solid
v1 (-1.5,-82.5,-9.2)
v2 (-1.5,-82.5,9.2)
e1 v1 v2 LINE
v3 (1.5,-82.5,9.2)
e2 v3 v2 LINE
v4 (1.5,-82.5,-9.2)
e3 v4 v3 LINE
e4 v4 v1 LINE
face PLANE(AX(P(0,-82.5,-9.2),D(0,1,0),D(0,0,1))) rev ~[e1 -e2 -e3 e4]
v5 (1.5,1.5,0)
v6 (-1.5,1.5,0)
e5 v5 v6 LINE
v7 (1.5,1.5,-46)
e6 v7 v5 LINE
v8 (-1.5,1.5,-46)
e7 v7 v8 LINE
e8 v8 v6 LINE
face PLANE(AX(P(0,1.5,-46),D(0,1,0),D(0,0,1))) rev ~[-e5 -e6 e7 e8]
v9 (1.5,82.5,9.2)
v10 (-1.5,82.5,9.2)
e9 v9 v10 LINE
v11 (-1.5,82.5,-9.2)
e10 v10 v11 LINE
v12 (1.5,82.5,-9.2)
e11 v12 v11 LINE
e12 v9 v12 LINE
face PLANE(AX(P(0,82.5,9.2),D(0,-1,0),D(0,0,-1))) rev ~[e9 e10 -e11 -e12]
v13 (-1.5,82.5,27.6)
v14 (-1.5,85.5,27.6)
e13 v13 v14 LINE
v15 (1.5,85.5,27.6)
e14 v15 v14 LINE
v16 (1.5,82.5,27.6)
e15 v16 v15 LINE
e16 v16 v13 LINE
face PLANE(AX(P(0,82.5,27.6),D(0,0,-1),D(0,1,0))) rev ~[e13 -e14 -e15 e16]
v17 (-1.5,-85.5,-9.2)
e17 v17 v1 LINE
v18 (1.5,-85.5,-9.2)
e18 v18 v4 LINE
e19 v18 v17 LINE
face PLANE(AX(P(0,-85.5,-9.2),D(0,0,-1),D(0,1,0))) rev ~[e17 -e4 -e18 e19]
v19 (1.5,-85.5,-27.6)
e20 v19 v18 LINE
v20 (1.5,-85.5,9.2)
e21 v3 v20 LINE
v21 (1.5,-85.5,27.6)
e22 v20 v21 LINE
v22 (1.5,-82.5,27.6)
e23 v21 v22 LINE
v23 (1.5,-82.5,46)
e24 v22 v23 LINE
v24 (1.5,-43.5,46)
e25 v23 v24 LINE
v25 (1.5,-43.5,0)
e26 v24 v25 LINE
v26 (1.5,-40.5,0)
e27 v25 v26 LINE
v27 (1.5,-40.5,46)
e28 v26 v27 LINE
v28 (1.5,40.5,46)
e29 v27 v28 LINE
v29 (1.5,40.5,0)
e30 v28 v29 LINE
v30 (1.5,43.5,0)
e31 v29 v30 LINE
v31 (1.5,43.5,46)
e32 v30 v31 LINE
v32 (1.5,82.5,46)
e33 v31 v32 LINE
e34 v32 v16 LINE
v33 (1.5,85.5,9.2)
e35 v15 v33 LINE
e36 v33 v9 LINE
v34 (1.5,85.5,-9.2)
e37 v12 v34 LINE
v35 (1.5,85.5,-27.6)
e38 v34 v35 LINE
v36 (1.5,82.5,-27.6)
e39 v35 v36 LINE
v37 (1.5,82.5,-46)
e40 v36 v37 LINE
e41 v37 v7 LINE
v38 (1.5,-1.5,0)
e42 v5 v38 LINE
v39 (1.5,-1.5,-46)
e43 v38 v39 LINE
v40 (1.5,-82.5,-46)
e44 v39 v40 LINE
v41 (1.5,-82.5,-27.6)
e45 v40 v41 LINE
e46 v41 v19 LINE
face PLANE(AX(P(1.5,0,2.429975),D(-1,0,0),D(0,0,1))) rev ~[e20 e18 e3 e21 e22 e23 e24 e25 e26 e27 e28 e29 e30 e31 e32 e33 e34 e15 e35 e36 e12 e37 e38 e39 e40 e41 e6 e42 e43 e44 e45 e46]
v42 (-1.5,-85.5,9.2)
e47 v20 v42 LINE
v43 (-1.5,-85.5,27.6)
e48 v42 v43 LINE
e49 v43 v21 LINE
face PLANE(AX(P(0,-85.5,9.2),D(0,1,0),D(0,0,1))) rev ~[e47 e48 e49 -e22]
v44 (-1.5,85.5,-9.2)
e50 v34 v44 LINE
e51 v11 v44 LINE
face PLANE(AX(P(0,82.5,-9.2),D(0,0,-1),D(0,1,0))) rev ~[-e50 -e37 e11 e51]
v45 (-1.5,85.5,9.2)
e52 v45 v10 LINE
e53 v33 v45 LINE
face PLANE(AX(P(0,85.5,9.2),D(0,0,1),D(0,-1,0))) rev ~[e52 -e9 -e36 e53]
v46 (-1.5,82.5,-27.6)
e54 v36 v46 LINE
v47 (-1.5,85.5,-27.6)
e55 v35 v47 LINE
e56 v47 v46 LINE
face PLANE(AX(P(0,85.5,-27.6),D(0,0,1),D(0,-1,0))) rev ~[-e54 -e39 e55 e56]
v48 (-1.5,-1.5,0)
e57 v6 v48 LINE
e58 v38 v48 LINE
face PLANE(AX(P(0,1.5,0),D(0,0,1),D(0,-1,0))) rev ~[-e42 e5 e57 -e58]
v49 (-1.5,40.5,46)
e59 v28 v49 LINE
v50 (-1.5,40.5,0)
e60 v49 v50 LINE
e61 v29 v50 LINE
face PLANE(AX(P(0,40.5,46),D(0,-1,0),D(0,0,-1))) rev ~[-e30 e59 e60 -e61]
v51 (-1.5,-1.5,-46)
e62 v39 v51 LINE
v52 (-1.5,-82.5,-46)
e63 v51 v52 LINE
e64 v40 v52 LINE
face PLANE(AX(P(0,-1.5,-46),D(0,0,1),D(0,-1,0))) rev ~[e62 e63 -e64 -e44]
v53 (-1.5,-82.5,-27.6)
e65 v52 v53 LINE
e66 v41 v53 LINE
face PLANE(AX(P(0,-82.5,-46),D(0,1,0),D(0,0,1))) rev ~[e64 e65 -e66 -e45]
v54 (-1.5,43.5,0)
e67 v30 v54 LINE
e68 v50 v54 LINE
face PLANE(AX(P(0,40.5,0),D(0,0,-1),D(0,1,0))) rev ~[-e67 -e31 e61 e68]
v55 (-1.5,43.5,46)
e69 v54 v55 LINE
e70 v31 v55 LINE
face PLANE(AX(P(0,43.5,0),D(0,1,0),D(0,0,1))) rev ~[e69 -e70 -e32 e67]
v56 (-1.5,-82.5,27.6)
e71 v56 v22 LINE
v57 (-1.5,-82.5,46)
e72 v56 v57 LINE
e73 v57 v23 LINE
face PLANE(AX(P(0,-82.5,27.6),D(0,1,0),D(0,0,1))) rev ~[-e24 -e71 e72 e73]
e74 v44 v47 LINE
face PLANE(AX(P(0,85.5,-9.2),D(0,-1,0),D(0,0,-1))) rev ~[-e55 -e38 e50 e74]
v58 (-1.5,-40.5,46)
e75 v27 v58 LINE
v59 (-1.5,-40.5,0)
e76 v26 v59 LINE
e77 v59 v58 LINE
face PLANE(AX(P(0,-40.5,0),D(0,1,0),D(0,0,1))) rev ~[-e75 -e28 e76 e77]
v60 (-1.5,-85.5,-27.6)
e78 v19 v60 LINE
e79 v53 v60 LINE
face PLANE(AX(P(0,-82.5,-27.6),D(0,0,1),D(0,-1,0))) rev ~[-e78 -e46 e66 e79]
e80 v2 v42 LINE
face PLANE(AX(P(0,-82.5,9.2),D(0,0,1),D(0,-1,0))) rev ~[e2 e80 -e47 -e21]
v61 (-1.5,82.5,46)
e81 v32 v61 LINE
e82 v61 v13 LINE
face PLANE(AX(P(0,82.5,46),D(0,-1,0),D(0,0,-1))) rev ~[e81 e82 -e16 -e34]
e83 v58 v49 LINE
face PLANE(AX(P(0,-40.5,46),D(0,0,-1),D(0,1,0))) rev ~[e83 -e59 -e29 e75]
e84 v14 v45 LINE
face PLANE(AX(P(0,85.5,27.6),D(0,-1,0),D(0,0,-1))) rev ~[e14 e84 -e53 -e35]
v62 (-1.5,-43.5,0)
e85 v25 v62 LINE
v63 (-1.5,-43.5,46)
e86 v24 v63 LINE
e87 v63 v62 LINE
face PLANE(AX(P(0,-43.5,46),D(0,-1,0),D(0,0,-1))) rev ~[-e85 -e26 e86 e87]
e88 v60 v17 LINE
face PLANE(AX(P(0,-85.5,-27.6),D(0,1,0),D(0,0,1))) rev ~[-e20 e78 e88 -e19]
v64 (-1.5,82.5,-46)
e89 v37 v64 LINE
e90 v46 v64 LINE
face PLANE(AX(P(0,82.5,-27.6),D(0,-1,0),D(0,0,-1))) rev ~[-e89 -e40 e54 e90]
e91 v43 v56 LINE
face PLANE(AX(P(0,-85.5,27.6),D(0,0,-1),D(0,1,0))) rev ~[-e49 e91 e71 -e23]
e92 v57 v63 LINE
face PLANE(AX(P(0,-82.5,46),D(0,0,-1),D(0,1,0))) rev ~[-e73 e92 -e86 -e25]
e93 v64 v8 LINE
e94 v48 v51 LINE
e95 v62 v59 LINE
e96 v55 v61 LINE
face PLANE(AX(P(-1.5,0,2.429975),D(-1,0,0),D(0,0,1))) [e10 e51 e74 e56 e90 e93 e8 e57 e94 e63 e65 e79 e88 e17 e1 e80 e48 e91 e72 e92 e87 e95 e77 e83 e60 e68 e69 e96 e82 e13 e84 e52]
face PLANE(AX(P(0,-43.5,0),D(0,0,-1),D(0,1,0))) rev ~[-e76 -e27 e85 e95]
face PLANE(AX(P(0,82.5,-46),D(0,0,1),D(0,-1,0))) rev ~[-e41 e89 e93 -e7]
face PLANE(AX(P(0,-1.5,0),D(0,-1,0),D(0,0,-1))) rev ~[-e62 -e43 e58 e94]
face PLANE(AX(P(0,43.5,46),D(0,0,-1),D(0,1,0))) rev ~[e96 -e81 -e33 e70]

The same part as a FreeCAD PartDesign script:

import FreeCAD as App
import Part
import Sketcher
from FreeCAD import Vector
Q = App.Units.Quantity

doc = App.newDocument("Part")
body = doc.addObject("PartDesign::Body", "Body")

# Sketch on YZ plane
sketch1 = body.newObject("Sketcher::SketchObject", "Sketch")
sketch1.AttachmentSupport = (doc.getObject("YZ_Plane"), [""])
sketch1.MapMode = "FlatFace"
sketch1.addGeometry([
    Part.LineSegment(Vector(-43.5, 46, 0), Vector(-82.5, 46, 0)),  # 0
    Part.LineSegment(Vector(-82.5, 46, 0), Vector(-82.5, 27.6, 0)),  # 1
    Part.LineSegment(Vector(-82.5, 27.6, 0), Vector(-85.5, 27.6, 0)),  # 2
    Part.LineSegment(Vector(-85.5, 27.6, 0), Vector(-85.5, 9.2, 0)),  # 3
    Part.LineSegment(Vector(-85.5, 9.2, 0), Vector(-82.5, 9.2, 0)),  # 4
    Part.LineSegment(Vector(-82.5, 9.2, 0), Vector(-82.5, -9.2, 0)),  # 5
    Part.LineSegment(Vector(-82.5, -9.2, 0), Vector(-85.5, -9.2, 0)),  # 6
    Part.LineSegment(Vector(-85.5, -9.2, 0), Vector(-85.5, -27.6, 0)),  # 7
    Part.LineSegment(Vector(-85.5, -27.6, 0), Vector(-82.5, -27.6, 0)),  # 8
    Part.LineSegment(Vector(-82.5, -27.6, 0), Vector(-82.5, -46, 0)),  # 9
    Part.LineSegment(Vector(-82.5, -46, 0), Vector(-1.5, -46, 0)),  # 10
    Part.LineSegment(Vector(-1.5, -46, 0), Vector(-1.5, 0, 0)),  # 11
    Part.LineSegment(Vector(-1.5, 0, 0), Vector(1.5, 0, 0)),  # 12
    Part.LineSegment(Vector(1.5, 0, 0), Vector(1.5, -46, 0)),  # 13
    Part.LineSegment(Vector(1.5, -46, 0), Vector(82.5, -46, 0)),  # 14
    Part.LineSegment(Vector(82.5, -46, 0), Vector(82.5, -27.6, 0)),  # 15
    Part.LineSegment(Vector(82.5, -27.6, 0), Vector(85.5, -27.6, 0)),  # 16
    Part.LineSegment(Vector(85.5, -27.6, 0), Vector(85.5, -9.2, 0)),  # 17
    Part.LineSegment(Vector(85.5, -9.2, 0), Vector(82.5, -9.2, 0)),  # 18
    Part.LineSegment(Vector(82.5, -9.2, 0), Vector(82.5, 9.2, 0)),  # 19
    Part.LineSegment(Vector(82.5, 9.2, 0), Vector(85.5, 9.2, 0)),  # 20
    Part.LineSegment(Vector(85.5, 9.2, 0), Vector(85.5, 27.6, 0)),  # 21
    Part.LineSegment(Vector(85.5, 27.6, 0), Vector(82.5, 27.6, 0)),  # 22
    Part.LineSegment(Vector(82.5, 27.6, 0), Vector(82.5, 46, 0)),  # 23
    Part.LineSegment(Vector(82.5, 46, 0), Vector(43.5, 46, 0)),  # 24
    Part.LineSegment(Vector(43.5, 46, 0), Vector(43.5, 0, 0)),  # 25
    Part.LineSegment(Vector(43.5, 0, 0), Vector(40.5, 0, 0)),  # 26
    Part.LineSegment(Vector(40.5, 0, 0), Vector(40.5, 46, 0)),  # 27
    Part.LineSegment(Vector(40.5, 46, 0), Vector(-40.5, 46, 0)),  # 28
    Part.LineSegment(Vector(-40.5, 46, 0), Vector(-40.5, 0, 0)),  # 29
    Part.LineSegment(Vector(-40.5, 0, 0), Vector(-43.5, 0, 0)),  # 30
    Part.LineSegment(Vector(-43.5, 0, 0), Vector(-43.5, 46, 0)),  # 31
], False)
sketch1.addConstraint([
    Sketcher.Constraint("Coincident", 0, 2, 1, 1),
    Sketcher.Constraint("Coincident", 1, 2, 2, 1),
    Sketcher.Constraint("Coincident", 2, 2, 3, 1),
    Sketcher.Constraint("Coincident", 3, 2, 4, 1),
    Sketcher.Constraint("Coincident", 4, 2, 5, 1),
    Sketcher.Constraint("Coincident", 5, 2, 6, 1),
    Sketcher.Constraint("Coincident", 6, 2, 7, 1),
    Sketcher.Constraint("Coincident", 7, 2, 8, 1),
    Sketcher.Constraint("Coincident", 8, 2, 9, 1),
    Sketcher.Constraint("Coincident", 9, 2, 10, 1),
    Sketcher.Constraint("Coincident", 10, 2, 11, 1),
    Sketcher.Constraint("Coincident", 11, 2, 12, 1),
    Sketcher.Constraint("Coincident", 12, 2, 13, 1),
    Sketcher.Constraint("Coincident", 13, 2, 14, 1),
    Sketcher.Constraint("Coincident", 14, 2, 15, 1),
    Sketcher.Constraint("Coincident", 15, 2, 16, 1),
    Sketcher.Constraint("Coincident", 16, 2, 17, 1),
    Sketcher.Constraint("Coincident", 17, 2, 18, 1),
    Sketcher.Constraint("Coincident", 18, 2, 19, 1),
    Sketcher.Constraint("Coincident", 19, 2, 20, 1),
    Sketcher.Constraint("Coincident", 20, 2, 21, 1),
    Sketcher.Constraint("Coincident", 21, 2, 22, 1),
    Sketcher.Constraint("Coincident", 22, 2, 23, 1),
    Sketcher.Constraint("Coincident", 23, 2, 24, 1),
    Sketcher.Constraint("Coincident", 24, 2, 25, 1),
    Sketcher.Constraint("Coincident", 25, 2, 26, 1),
    Sketcher.Constraint("Coincident", 26, 2, 27, 1),
    Sketcher.Constraint("Coincident", 27, 2, 28, 1),
    Sketcher.Constraint("Coincident", 28, 2, 29, 1),
    Sketcher.Constraint("Coincident", 29, 2, 30, 1),
    Sketcher.Constraint("Coincident", 30, 2, 31, 1),
    Sketcher.Constraint("Coincident", 31, 2, 0, 1),
    Sketcher.Constraint("Horizontal", 0),
    Sketcher.Constraint("Vertical", 1),
    Sketcher.Constraint("Horizontal", 2),
    Sketcher.Constraint("Vertical", 3),
    Sketcher.Constraint("Horizontal", 4),
    Sketcher.Constraint("Vertical", 5),
    Sketcher.Constraint("Horizontal", 6),
    Sketcher.Constraint("Vertical", 7),
    Sketcher.Constraint("Horizontal", 8),
    Sketcher.Constraint("Vertical", 9),
    Sketcher.Constraint("Horizontal", 10),
    Sketcher.Constraint("Vertical", 11),
    Sketcher.Constraint("Horizontal", 12),
    Sketcher.Constraint("Vertical", 13),
    Sketcher.Constraint("Horizontal", 14),
    Sketcher.Constraint("Vertical", 15),
    Sketcher.Constraint("Horizontal", 16),
    Sketcher.Constraint("Vertical", 17),
    Sketcher.Constraint("Horizontal", 18),
    Sketcher.Constraint("Vertical", 19),
    Sketcher.Constraint("Horizontal", 20),
    Sketcher.Constraint("Vertical", 21),
    Sketcher.Constraint("Horizontal", 22),
    Sketcher.Constraint("Vertical", 23),
    Sketcher.Constraint("Horizontal", 24),
    Sketcher.Constraint("Vertical", 25),
    Sketcher.Constraint("Horizontal", 26),
    Sketcher.Constraint("Vertical", 27),
    Sketcher.Constraint("Horizontal", 28),
    Sketcher.Constraint("Vertical", 29),
    Sketcher.Constraint("Horizontal", 30),
    Sketcher.Constraint("Vertical", 31),
    Sketcher.Constraint("Symmetric", 11, 2, 12, 2, -1, 1),
    Sketcher.Constraint("Symmetric", 0, 2, 14, 2, -1, 1),
    Sketcher.Constraint("Symmetric", 2, 2, 16, 2, -1, 1),
    Sketcher.Constraint("Symmetric", 4, 2, 18, 2, -1, 1),
    Sketcher.Constraint("Symmetric", 6, 2, 20, 2, -1, 1),
    Sketcher.Constraint("Symmetric", 8, 2, 22, 2, -1, 1),
    Sketcher.Constraint("Symmetric", 26, 2, 29, 2, -1, 1),
    Sketcher.Constraint("Symmetric", 9, 2, 14, 2, -2),
    Sketcher.Constraint("Symmetric", 7, 2, 16, 2, -2),
    Sketcher.Constraint("Symmetric", 25, 2, 30, 2, -2),
    Sketcher.Constraint("Horizontal", 6, 2, 17, 2),
    Sketcher.Constraint("Horizontal", 0, 2, 23, 2),
    Sketcher.Constraint("Horizontal", 24, 2, 27, 2),
    Sketcher.Constraint("Vertical", 1, 2, 4, 2),
    Sketcher.Constraint("Equal", 8, 12),
    Sketcher.Constraint("Equal", 22, 26),
    Sketcher.Constraint("Equal", 14, 28),
    Sketcher.Constraint("Equal", 1, 3),
    Sketcher.Constraint("Equal", 3, 5),
    Sketcher.Constraint("DistanceX", 0, 2, 0, 1, Q("39 mm")),
    Sketcher.Constraint("DistanceX", 2, 2, 2, 1, Q("3 mm")),
    Sketcher.Constraint("DistanceY", 11, 1, 11, 2, Q("46 mm")),
])
pad1 = body.newObject("PartDesign::Pad", "Pad")
pad1.Profile = sketch1
pad1.Length = 3
pad1.Midplane = True

doc.recompute()
